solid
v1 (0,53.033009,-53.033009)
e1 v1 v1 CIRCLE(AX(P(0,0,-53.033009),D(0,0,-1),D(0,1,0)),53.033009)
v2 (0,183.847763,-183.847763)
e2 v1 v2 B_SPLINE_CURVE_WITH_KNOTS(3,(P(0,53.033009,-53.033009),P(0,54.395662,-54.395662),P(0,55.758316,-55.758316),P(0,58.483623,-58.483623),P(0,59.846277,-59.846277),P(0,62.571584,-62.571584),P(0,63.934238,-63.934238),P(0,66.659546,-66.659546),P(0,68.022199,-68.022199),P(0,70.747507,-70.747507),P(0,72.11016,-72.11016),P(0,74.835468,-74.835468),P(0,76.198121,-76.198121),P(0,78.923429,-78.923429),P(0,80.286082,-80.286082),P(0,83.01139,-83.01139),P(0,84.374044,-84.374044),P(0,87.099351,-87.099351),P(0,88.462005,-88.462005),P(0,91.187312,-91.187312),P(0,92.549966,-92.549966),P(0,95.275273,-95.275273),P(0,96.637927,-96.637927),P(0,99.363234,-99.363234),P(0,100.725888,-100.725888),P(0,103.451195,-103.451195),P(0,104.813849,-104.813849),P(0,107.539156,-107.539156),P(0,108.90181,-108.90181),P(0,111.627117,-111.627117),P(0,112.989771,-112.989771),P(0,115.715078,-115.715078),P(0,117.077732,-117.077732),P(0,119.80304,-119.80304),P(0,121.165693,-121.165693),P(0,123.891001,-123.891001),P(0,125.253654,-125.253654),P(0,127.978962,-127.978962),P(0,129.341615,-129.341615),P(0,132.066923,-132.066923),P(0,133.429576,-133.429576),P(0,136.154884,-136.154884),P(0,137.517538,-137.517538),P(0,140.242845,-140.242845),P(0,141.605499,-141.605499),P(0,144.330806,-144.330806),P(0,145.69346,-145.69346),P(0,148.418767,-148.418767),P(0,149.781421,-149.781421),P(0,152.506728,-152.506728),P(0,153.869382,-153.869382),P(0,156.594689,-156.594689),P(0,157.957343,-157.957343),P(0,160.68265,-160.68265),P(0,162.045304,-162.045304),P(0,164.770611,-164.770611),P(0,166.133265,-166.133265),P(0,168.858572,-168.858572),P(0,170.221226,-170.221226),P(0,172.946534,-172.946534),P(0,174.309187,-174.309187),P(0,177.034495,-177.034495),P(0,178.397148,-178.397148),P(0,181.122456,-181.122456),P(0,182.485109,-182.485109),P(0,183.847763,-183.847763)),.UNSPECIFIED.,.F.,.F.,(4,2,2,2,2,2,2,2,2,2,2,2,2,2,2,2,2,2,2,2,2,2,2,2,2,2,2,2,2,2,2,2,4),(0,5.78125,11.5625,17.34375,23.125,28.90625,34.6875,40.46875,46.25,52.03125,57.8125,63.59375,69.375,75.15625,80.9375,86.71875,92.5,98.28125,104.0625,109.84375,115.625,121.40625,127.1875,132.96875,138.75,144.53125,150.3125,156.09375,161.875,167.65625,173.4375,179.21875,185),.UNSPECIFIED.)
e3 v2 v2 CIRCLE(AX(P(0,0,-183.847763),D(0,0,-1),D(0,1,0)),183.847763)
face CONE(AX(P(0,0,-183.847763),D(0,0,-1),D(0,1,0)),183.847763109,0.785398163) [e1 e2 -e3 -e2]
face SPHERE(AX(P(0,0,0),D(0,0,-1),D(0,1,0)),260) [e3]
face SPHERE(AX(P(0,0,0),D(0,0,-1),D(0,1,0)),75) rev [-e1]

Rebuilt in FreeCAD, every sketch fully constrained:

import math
import FreeCAD as App
import Part
import Sketcher

V = App.Vector
Q = App.Units.Quantity

doc = App.newDocument("Part")
body = doc.addObject("PartDesign::Body", "Body")

# Sketch on YZ plane
sketch1 = doc.addObject("Sketcher::SketchObject", "Sketch")
body.addObject(sketch1)
sketch1.AttachmentSupport = (doc.YZ_Plane, [""])
sketch1.MapMode = "FlatFace"
sketch1.addGeometry([
    Part.LineSegment(V(183.847763, -183.847763, 0), V(53.033009, -53.033009, 0)),
    Part.ArcOfCircle(Part.Circle(V(0, 0, 0), V(0, 0, 1), 75), math.radians(-90), math.radians(-45)),
    Part.LineSegment(V(0, -75, 0), V(0, -260, 0)),
    Part.ArcOfCircle(Part.Circle(V(0, 0, 0), V(0, 0, 1), 260), math.radians(-90), math.radians(-45)),
], False)
sketch1.addConstraint([
    Sketcher.Constraint("Coincident", 0, 2, 1, 2),
    Sketcher.Constraint("Coincident", 1, 1, 2, 1),
    Sketcher.Constraint("Coincident", 2, 2, 3, 1),
    Sketcher.Constraint("Coincident", 3, 2, 0, 1),
    Sketcher.Constraint("Vertical", 2),
    Sketcher.Constraint("Coincident", 1, 3, -1, 1),
    Sketcher.Constraint("Coincident", 3, 3, -1, 1),
    Sketcher.Constraint("PointOnObject", 1, 1, -2),
    Sketcher.Constraint("Radius", 1, Q("75 mm")),
    Sketcher.Constraint("Radius", 3, Q("260 mm")),
    Sketcher.Constraint("Angle", 0, Q("135 deg")),
    Sketcher.Constraint("DistanceX", -1, 1, 0, 2, Q("53.033009 mm")),
])
revolution = doc.addObject("PartDesign::Revolution", "Revolution")
body.addObject(revolution)
revolution.Profile = sketch1
revolution.ReferenceAxis = (sketch1, ["V_Axis"])
revolution.Angle = 360

doc.recompute()
